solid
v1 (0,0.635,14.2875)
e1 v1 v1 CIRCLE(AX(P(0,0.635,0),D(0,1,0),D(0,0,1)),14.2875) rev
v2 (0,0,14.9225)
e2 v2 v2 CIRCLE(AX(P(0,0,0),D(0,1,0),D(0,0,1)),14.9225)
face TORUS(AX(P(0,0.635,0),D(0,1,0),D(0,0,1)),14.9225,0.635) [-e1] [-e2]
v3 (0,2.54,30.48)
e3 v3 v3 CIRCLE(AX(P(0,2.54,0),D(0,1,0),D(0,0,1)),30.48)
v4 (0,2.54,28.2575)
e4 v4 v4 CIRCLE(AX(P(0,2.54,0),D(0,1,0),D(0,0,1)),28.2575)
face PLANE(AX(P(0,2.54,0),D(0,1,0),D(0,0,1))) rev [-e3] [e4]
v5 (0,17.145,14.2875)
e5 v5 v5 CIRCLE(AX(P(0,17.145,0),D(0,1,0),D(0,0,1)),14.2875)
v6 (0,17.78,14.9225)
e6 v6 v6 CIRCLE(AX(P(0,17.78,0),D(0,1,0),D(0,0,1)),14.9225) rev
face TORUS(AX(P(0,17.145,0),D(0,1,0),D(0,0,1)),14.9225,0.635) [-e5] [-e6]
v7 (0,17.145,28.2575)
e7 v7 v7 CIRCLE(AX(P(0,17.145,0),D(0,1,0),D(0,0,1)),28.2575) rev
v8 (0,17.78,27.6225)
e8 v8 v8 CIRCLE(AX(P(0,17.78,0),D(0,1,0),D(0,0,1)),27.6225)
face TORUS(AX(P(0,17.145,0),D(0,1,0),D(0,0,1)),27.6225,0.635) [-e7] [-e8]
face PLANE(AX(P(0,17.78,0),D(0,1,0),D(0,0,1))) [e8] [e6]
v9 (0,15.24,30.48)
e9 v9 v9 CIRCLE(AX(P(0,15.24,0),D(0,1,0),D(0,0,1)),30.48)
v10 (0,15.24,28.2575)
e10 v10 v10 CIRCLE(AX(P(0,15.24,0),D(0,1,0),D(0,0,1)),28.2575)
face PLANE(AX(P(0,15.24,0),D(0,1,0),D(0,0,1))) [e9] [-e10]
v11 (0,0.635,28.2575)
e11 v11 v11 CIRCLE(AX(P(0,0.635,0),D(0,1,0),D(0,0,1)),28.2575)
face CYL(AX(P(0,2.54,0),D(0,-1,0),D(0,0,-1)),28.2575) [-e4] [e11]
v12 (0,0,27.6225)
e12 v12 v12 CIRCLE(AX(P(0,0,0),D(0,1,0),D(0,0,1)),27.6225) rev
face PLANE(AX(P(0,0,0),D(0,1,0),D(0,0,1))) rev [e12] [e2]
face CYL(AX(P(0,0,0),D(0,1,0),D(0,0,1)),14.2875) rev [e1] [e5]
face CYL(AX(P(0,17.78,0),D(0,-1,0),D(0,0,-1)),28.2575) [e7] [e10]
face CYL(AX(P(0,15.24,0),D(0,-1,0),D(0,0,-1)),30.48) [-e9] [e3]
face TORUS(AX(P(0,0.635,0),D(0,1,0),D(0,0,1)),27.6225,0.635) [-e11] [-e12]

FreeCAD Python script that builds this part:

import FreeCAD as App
import Part
import Sketcher
from FreeCAD import Vector
Q = App.Units.Quantity


def edges_at(feature, points):
    """Names of the edges that pass closest to the given points."""
    edges = feature.Shape.Edges
    near = lambda p: min(range(len(edges)), key=lambda i: edges[i].distToShape(Part.Vertex(*p))[0])
    return sorted({f"Edge{near(p) + 1}" for p in points})

doc = App.newDocument("Part")
body = doc.addObject("PartDesign::Body", "Body")

sketch1 = doc.addObject("Sketcher::SketchObject", "Sketch")
body.addObject(sketch1)
sketch1.AttachmentSupport = (doc.XZ_Plane, [""])
sketch1.MapMode = "FlatFace"
sketch1.addGeometry(Part.Circle(Vector(0, 0, 0), Vector(0, 0, 1), 28), False)
sketch1.addConstraint(Sketcher.Constraint("Coincident", 0, 3, -1, 1))
sketch1.addConstraint(Sketcher.Constraint("Diameter", 0, Q("2.225 in")))
pad1 = doc.addObject("PartDesign::Pad", "Pad")
body.addObject(pad1)
pad1.Profile = sketch1
pad1.Length = Q("0.1 in")
pad1.Reversed = True

sketch2 = doc.addObject("Sketcher::SketchObject", "Sketch001")
body.addObject(sketch2)
sketch2.AttachmentSupport = (doc.XZ_Plane, [""])
sketch2.MapMode = "FlatFace"
sketch2.AttachmentOffset = App.Placement(Vector(0, 0, -0.1 * 25.4), App.Rotation())
sketch2.addGeometry(Part.Circle(Vector(0, 0, 0), Vector(0, 0, 1), 30), False)
sketch2.addConstraint(Sketcher.Constraint("Coincident", 0, 3, -1, 1))
sketch2.addConstraint(Sketcher.Constraint("Diameter", 0, Q("2.4 in")))
pad2 = doc.addObject("PartDesign::Pad", "Pad001")
body.addObject(pad2)
pad2.Profile = sketch2
pad2.Length = Q("0.5 in")
pad2.Reversed = True

sketch3 = doc.addObject("Sketcher::SketchObject", "Sketch002")
body.addObject(sketch3)
sketch3.AttachmentSupport = (doc.XZ_Plane, [""])
sketch3.MapMode = "FlatFace"
sketch3.AttachmentOffset = App.Placement(Vector(0, 0, -0.6 * 25.4), App.Rotation())
sketch3.addGeometry(Part.Circle(Vector(0, 0, 0), Vector(0, 0, 1), 28), False)
sketch3.addConstraint(Sketcher.Constraint("Coincident", 0, 3, -1, 1))
sketch3.addConstraint(Sketcher.Constraint("Diameter", 0, Q("2.225 in")))
pad3 = doc.addObject("PartDesign::Pad", "Pad002")
body.addObject(pad3)
pad3.Profile = sketch3
pad3.Length = Q("0.1 in")
pad3.Reversed = True

sketch4 = doc.addObject("Sketcher::SketchObject", "Sketch003")
body.addObject(sketch4)
sketch4.AttachmentSupport = (doc.XZ_Plane, [""])
sketch4.MapMode = "FlatFace"
sketch4.AttachmentOffset = App.Placement(Vector(0, 0, -0.7 * 25.4), App.Rotation())
sketch4.addGeometry(Part.Circle(Vector(0, 0, 0), Vector(0, 0, 1), 14), False)
sketch4.addConstraint(Sketcher.Constraint("Coincident", 0, 3, -1, 1))
sketch4.addConstraint(Sketcher.Constraint("Diameter", 0, Q("1.125 in")))
pocket1 = doc.addObject("PartDesign::Pocket", "Pocket")
body.addObject(pocket1)
pocket1.Profile = sketch4
pocket1.Type = "ThroughAll"
pocket1.Reversed = True
doc.recompute()

fillet = doc.addObject("PartDesign::Fillet", "Fillet")
body.addObject(fillet)
fillet.Base = (pocket1, edges_at(pocket1, [
    (-28.258, 17.78, 0),
    (-14.287, 0, 0),
    (-14.287, 17.78, 0),
    (-28.258, 0, 0),
]))
fillet.Radius = Q("0.025 in")

doc.recompute()
